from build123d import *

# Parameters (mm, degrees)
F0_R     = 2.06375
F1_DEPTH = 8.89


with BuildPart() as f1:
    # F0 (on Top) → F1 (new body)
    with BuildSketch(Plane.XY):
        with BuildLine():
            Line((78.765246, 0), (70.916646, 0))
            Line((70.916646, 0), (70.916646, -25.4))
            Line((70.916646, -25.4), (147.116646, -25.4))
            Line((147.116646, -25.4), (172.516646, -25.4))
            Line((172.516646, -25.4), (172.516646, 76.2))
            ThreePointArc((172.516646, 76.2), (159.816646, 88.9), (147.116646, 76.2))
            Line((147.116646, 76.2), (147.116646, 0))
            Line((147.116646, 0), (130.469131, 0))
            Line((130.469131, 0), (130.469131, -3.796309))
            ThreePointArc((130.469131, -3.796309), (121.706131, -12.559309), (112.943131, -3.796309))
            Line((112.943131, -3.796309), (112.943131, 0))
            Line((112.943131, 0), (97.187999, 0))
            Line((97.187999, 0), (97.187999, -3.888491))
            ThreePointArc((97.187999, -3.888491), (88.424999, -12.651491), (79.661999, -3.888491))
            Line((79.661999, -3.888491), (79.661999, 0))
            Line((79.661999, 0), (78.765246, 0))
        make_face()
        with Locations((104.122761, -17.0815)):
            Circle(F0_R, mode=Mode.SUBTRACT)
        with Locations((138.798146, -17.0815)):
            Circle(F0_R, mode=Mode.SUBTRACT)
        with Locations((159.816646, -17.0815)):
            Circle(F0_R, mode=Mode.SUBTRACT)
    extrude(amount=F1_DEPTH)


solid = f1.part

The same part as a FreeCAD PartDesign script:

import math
import FreeCAD as App
import Part
import Sketcher

V = App.Vector
Q = App.Units.Quantity

doc = App.newDocument("Part")
body = doc.addObject("PartDesign::Body", "Body")

# Sketch on XY plane
sketch1 = doc.addObject("Sketcher::SketchObject", "Sketch")
body.addObject(sketch1)
sketch1.AttachmentSupport = (doc.XY_Plane, [""])
sketch1.MapMode = "FlatFace"
sketch1.addGeometry(Part.LineSegment(V(70.9, 0, 0), V(70.9, -25.4, 0)), False)
sketch1.addGeometry(Part.LineSegment(V(70.9, -25.4, 0), V(172.5, -25.4, 0)), False)
sketch1.addGeometry(Part.LineSegment(V(172.5, -25.4, 0), V(172.5, 76.2, 0)), False)
sketch1.addGeometry(Part.ArcOfCircle(Part.Circle(V(159.8, 76.2, 0), V(0, 0, 1), 12.7), math.radians(0), math.radians(180)), False)
sketch1.addGeometry(Part.LineSegment(V(147.1, 76.2, 0), V(147.1, 0, 0)), False)
sketch1.addGeometry(Part.LineSegment(V(147.1, 0, 0), V(130.5, 0, 0)), False)
sketch1.addGeometry(Part.LineSegment(V(130.5, 0, 0), V(130.5, -3.8, 0)), False)
sketch1.addGeometry(Part.ArcOfCircle(Part.Circle(V(121.7, -3.8, 0), V(0, 0, 1), 8.8), math.radians(180), math.radians(360)), False)
sketch1.addGeometry(Part.LineSegment(V(112.9, -3.8, 0), V(112.9, 0, 0)), False)
sketch1.addGeometry(Part.LineSegment(V(112.9, 0, 0), V(97.2, 0, 0)), False)
sketch1.addGeometry(Part.LineSegment(V(97.2, 0, 0), V(97.2, -3.9, 0)), False)
sketch1.addGeometry(Part.ArcOfCircle(Part.Circle(V(88.4, -3.9, 0), V(0, 0, 1), 8.8), math.radians(180), math.radians(360)), False)
sketch1.addGeometry(Part.LineSegment(V(79.7, -3.9, 0), V(79.7, 0, 0)), False)
sketch1.addGeometry(Part.LineSegment(V(79.7, 0, 0), V(70.9, 0, 0)), False)
sketch1.addGeometry(Part.Circle(V(104.1, -17.1, 0), V(0, 0, 1), 2.1), False)
sketch1.addGeometry(Part.Circle(V(138.8, -17.1, 0), V(0, 0, 1), 2.1), False)
sketch1.addGeometry(Part.Circle(V(159.8, -17.1, 0), V(0, 0, 1), 2.1), False)
sketch1.addConstraint(Sketcher.Constraint("Coincident", 0, 2, 1, 1))
sketch1.addConstraint(Sketcher.Constraint("Coincident", 1, 2, 2, 1))
sketch1.addConstraint(Sketcher.Constraint("Tangent", 2, 2, 3, 1))
sketch1.addConstraint(Sketcher.Constraint("Tangent", 3, 2, 4, 1))
sketch1.addConstraint(Sketcher.Constraint("Coincident", 4, 2, 5, 1))
sketch1.addConstraint(Sketcher.Constraint("Coincident", 5, 2, 6, 1))
sketch1.addConstraint(Sketcher.Constraint("Tangent", 6, 2, 7, 2))
sketch1.addConstraint(Sketcher.Constraint("Tangent", 7, 1, 8, 1))
sketch1.addConstraint(Sketcher.Constraint("Coincident", 8, 2, 9, 1))
sketch1.addConstraint(Sketcher.Constraint("Coincident", 9, 2, 10, 1))
sketch1.addConstraint(Sketcher.Constraint("Tangent", 10, 2, 11, 2))
sketch1.addConstraint(Sketcher.Constraint("Tangent", 11, 1, 12, 1))
sketch1.addConstraint(Sketcher.Constraint("Coincident", 12, 2, 13, 1))
sketch1.addConstraint(Sketcher.Constraint("Coincident", 13, 2, 0, 1))
sketch1.addConstraint(Sketcher.Constraint("Vertical", 0))
sketch1.addConstraint(Sketcher.Constraint("Horizontal", 1))
sketch1.addConstraint(Sketcher.Constraint("Vertical", 2))
sketch1.addConstraint(Sketcher.Constraint("Vertical", 4))
sketch1.addConstraint(Sketcher.Constraint("Horizontal", 5))
sketch1.addConstraint(Sketcher.Constraint("Vertical", 6))
sketch1.addConstraint(Sketcher.Constraint("Vertical", 8))
sketch1.addConstraint(Sketcher.Constraint("Horizontal", 9))
sketch1.addConstraint(Sketcher.Constraint("Vertical", 10))
sketch1.addConstraint(Sketcher.Constraint("Vertical", 12))
sketch1.addConstraint(Sketcher.Constraint("Horizontal", 13))
sketch1.addConstraint(Sketcher.Constraint("Equal", 7, 11))
sketch1.addConstraint(Sketcher.Constraint("Equal", 14, 15))
sketch1.addConstraint(Sketcher.Constraint("Equal", 15, 16))
sketch1.addConstraint(Sketcher.Constraint("PointOnObject", 4, 2, -1))
sketch1.addConstraint(Sketcher.Constraint("PointOnObject", 8, 2, -1))
sketch1.addConstraint(Sketcher.Constraint("PointOnObject", 12, 2, -1))
sketch1.addConstraint(Sketcher.Constraint("Horizontal", 14, 3, 15, 3))
sketch1.addConstraint(Sketcher.Constraint("Horizontal", 15, 3, 16, 3))
sketch1.addConstraint(Sketcher.Constraint("Vertical", 3, 3, 16, 3))
sketch1.addConstraint(Sketcher.Constraint("Equal", 1, 2))
sketch1.addConstraint(Sketcher.Constraint("Radius", 3, Q("0.5 in")))
sketch1.addConstraint(Sketcher.Constraint("DistanceX", 1, 1, 1, 2, Q("4 in")))
sketch1.addConstraint(Sketcher.Constraint("DistanceY", 0, 2, 0, 1, Q("1 in")))
sketch1.addConstraint(Sketcher.Constraint("Radius", 7, Q("0.345 in")))
sketch1.addConstraint(Sketcher.Constraint("Diameter", 14, Q("0.1625 in")))
sketch1.addConstraint(Sketcher.Constraint("DistanceY", 14, 3, -1, 1, Q("0.6725 in")))
sketch1.addConstraint(Sketcher.Constraint("DistanceX", 15, 3, 3, 3, Q("0.8275 in")))
sketch1.addConstraint(Sketcher.Constraint("DistanceX", 9, 2, 9, 1, 15.755132))
sketch1.addConstraint(Sketcher.Constraint("DistanceY", 6, 2, 6, 1, 3.796309))
sketch1.addConstraint(Sketcher.Constraint("DistanceY", 10, 2, 10, 1, 3.888491))
sketch1.addConstraint(Sketcher.Constraint("DistanceX", -1, 1, 11, 3, 88.424999))
sketch1.addConstraint(Sketcher.Constraint("DistanceX", 5, 2, 5, 1, 16.647515))
sketch1.addConstraint(Sketcher.Constraint("DistanceX", -1, 1, 14, 3, 104.122761))
pad1 = doc.addObject("PartDesign::Pad", "Pad")
body.addObject(pad1)
pad1.Profile = sketch1
pad1.Length = Q("0.35 in")

doc.recompute()
